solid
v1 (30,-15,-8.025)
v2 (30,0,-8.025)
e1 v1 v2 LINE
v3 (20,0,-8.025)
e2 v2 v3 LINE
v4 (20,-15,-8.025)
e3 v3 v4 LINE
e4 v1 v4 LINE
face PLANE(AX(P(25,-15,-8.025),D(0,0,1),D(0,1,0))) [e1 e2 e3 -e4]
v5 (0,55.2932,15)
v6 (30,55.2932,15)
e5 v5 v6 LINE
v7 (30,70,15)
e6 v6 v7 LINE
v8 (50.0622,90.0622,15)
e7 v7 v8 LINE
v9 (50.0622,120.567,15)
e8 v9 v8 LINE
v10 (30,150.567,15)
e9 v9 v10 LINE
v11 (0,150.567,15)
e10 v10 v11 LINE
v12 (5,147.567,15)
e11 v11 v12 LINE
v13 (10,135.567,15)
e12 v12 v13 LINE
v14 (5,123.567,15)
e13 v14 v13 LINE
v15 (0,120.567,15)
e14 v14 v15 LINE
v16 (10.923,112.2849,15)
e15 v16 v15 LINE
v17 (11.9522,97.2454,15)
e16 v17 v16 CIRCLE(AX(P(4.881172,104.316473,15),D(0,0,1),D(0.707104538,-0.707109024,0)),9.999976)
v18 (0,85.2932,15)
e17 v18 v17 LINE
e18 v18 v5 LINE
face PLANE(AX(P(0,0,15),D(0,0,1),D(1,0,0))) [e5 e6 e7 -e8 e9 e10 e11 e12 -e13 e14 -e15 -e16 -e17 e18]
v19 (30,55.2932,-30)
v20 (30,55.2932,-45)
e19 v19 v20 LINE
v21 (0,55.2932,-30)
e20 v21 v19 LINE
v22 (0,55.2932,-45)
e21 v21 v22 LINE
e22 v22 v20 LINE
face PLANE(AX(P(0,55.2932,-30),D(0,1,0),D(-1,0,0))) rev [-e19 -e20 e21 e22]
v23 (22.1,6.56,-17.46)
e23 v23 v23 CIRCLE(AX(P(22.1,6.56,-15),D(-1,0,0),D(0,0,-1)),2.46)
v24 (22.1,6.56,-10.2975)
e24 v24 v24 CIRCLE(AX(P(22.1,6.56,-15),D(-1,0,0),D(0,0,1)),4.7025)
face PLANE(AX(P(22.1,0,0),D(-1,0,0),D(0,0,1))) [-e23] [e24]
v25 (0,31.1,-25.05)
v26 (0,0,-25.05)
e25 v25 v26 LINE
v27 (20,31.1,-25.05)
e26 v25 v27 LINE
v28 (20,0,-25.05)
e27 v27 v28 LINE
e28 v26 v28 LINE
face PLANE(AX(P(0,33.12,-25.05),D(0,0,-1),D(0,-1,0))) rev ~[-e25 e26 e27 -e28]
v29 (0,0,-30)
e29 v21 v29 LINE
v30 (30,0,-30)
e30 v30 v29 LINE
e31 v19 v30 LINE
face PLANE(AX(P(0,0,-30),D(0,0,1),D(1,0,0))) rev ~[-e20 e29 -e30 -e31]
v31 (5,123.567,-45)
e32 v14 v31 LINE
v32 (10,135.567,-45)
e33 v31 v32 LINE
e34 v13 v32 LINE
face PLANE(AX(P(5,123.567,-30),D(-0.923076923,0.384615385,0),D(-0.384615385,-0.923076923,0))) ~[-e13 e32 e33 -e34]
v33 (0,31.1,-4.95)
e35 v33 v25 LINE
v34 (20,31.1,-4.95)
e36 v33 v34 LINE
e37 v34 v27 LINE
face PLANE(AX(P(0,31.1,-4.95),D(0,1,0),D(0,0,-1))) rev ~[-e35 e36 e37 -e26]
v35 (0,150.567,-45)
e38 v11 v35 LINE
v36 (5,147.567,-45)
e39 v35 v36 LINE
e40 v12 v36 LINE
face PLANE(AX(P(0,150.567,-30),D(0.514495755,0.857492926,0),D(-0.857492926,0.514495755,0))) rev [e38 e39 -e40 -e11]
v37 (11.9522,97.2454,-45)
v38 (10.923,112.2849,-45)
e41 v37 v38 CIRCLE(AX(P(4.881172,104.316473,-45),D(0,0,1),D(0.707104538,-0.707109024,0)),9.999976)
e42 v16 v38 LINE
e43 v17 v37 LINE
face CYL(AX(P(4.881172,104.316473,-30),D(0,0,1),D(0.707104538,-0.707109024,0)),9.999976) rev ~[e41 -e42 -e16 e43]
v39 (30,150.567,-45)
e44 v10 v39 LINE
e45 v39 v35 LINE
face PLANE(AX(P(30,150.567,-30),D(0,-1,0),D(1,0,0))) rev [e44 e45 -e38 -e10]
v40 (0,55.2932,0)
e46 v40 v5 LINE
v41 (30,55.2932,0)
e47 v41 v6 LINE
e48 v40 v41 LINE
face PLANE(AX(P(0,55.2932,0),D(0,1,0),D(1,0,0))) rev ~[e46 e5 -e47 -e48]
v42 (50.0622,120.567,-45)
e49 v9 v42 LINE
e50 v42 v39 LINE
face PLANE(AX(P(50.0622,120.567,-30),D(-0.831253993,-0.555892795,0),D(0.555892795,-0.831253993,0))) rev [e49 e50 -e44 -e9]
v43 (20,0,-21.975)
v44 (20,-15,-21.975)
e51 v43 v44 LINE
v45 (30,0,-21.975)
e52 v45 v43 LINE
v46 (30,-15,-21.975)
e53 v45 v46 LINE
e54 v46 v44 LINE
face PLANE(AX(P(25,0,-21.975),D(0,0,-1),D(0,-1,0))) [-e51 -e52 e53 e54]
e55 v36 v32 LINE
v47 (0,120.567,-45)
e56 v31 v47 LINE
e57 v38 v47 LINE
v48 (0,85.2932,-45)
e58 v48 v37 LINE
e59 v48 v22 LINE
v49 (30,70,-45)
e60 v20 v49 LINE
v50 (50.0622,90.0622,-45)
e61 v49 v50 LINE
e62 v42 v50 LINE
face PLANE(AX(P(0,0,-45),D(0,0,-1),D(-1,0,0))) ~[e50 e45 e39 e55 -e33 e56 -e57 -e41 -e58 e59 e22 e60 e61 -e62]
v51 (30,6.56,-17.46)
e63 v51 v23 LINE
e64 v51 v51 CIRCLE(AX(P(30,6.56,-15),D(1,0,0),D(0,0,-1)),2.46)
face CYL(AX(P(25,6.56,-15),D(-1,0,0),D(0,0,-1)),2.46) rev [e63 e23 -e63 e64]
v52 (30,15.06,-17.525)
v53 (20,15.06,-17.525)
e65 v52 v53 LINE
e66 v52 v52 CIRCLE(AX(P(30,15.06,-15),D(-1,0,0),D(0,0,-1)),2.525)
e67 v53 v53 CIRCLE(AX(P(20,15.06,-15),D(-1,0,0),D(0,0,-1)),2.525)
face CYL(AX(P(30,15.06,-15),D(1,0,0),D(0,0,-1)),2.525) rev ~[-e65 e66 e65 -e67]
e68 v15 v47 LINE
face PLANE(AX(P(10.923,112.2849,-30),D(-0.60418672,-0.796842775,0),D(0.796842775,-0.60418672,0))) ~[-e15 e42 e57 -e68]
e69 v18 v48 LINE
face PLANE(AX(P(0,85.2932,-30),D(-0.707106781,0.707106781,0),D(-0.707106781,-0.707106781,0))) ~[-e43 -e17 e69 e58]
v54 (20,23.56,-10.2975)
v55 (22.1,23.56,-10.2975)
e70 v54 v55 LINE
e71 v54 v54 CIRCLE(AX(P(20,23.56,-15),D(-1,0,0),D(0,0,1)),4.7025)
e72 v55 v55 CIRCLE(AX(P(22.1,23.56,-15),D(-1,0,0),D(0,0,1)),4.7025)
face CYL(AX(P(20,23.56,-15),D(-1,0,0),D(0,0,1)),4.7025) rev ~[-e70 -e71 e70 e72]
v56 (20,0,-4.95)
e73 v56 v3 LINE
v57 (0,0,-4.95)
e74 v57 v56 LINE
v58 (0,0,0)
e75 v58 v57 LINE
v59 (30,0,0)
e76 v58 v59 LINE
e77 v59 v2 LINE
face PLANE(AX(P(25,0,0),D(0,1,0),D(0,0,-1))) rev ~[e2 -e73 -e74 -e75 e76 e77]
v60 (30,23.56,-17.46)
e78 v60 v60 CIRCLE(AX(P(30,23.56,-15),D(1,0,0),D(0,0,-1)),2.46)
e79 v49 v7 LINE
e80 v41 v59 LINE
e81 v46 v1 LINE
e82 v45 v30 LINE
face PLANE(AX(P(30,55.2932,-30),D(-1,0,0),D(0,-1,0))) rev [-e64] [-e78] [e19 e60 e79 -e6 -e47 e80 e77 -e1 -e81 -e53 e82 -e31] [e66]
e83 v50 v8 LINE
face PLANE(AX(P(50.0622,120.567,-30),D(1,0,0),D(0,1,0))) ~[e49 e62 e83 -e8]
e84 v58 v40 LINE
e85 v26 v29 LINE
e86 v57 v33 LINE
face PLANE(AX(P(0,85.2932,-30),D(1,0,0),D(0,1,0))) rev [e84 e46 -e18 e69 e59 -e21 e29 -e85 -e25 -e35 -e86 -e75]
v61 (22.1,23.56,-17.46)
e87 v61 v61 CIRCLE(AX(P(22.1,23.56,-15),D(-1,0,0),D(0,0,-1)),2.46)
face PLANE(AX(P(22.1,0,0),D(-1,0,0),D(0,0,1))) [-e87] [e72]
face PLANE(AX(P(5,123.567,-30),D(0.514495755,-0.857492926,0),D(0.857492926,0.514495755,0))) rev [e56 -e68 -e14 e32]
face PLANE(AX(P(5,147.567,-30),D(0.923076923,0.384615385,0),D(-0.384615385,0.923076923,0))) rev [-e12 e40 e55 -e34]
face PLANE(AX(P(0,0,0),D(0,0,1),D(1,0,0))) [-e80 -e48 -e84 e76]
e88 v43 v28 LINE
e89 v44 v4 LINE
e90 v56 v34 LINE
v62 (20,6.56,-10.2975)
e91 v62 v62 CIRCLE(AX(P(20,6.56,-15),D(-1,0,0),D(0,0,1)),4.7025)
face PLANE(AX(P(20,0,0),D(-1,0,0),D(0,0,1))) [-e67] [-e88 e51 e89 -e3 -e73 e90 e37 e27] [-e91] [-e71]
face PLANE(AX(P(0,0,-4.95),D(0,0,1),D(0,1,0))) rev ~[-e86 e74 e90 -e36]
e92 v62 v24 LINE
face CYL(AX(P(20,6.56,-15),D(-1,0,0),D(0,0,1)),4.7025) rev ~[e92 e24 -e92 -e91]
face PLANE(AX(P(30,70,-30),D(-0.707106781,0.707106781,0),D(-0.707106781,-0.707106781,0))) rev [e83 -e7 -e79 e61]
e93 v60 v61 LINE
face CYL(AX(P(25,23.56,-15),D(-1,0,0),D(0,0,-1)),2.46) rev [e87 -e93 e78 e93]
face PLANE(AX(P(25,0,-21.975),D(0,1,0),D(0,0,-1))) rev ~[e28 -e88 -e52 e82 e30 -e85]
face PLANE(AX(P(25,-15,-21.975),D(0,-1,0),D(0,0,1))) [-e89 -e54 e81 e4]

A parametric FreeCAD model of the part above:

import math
import FreeCAD as App
import Part
import Sketcher
Q = App.Units.Quantity

doc = App.newDocument("Part")
body = doc.addObject("PartDesign::Body", "Body")

# Sketch on XY plane
sketch1 = doc.addObject("Sketcher::SketchObject", "Sketch")
body.addObject(sketch1)
sketch1.AttachmentSupport = (doc.XY_Plane, [""])
sketch1.MapMode = "FlatFace"
sketch1.addGeometry([
    Part.LineSegment(App.Vector(0, 40, 0), App.Vector(0, 0, 0)),
    Part.LineSegment(App.Vector(0, 0, 0), App.Vector(25, 0, 0)),
    Part.LineSegment(App.Vector(25, 0, 0), App.Vector(25, 40, 0)),
    Part.LineSegment(App.Vector(25, 40, 0), App.Vector(0, 40, 0)),
], False)
sketch1.addConstraint([
    Sketcher.Constraint("Coincident", 0, 2, 1, 1),
    Sketcher.Constraint("Coincident", 1, 2, 2, 1),
    Sketcher.Constraint("Coincident", 2, 2, 3, 1),
    Sketcher.Constraint("Coincident", 3, 2, 0, 1),
    Sketcher.Constraint("Vertical", 0),
    Sketcher.Constraint("Horizontal", 1),
    Sketcher.Constraint("Vertical", 2),
    Sketcher.Constraint("Horizontal", 3),
    Sketcher.Constraint("Coincident", 0, 2, -1, 1),
    Sketcher.Constraint("DistanceX", 1, 1, 1, 2, Q("25 mm")),
    Sketcher.Constraint("DistanceY", 0, 2, 0, 1, Q("40 mm")),
])
pad1 = doc.addObject("PartDesign::Pad", "Pad")
body.addObject(pad1)
pad1.Profile = sketch1
pad1.Length = 30
pad1.Reversed = True

# Sketch on YZ plane
sketch2 = doc.addObject("Sketcher::SketchObject", "Sketch001")
body.addObject(sketch2)
sketch2.AttachmentSupport = (doc.YZ_Plane, [""])
sketch2.MapMode = "FlatFace"
sketch2.AttachmentOffset = App.Placement(App.Vector(0, 0, 25), App.Rotation())
sketch2.addGeometry(Part.Circle(App.Vector(6.56, -15, 0), App.Vector(0, 0, 1), 2.46), False)
sketch2.addConstraint([
    Sketcher.Constraint("Diameter", 0, Q("4.92 mm")),
    Sketcher.Constraint("DistanceY", 0, 3, -1, 1, Q("15 mm")),
    Sketcher.Constraint("DistanceX", -1, 1, 0, 3, Q("6.56 mm")),
])
pocket1 = doc.addObject("PartDesign::Pocket", "Pocket")
body.addObject(pocket1)
pocket1.Profile = sketch2
pocket1.Length = 30

# Sketch on YZ plane
sketch3 = doc.addObject("Sketcher::SketchObject", "Sketch002")
body.addObject(sketch3)
sketch3.AttachmentSupport = (doc.YZ_Plane, [""])
sketch3.MapMode = "FlatFace"
sketch3.addGeometry([
    Part.LineSegment(App.Vector(0, -25.05, 0), App.Vector(0, -4.95, 0)),
    Part.LineSegment(App.Vector(0, -4.95, 0), App.Vector(33.12, -4.95, 0)),
    Part.LineSegment(App.Vector(33.12, -4.95, 0), App.Vector(33.12, -25.05, 0)),
    Part.LineSegment(App.Vector(33.12, -25.05, 0), App.Vector(0, -25.05, 0)),
], False)
sketch3.addConstraint([
    Sketcher.Constraint("Coincident", 0, 2, 1, 1),
    Sketcher.Constraint("Coincident", 1, 2, 2, 1),
    Sketcher.Constraint("Coincident", 2, 2, 3, 1),
    Sketcher.Constraint("Coincident", 3, 2, 0, 1),
    Sketcher.Constraint("Vertical", 0),
    Sketcher.Constraint("Horizontal", 1),
    Sketcher.Constraint("Vertical", 2),
    Sketcher.Constraint("Horizontal", 3),
    Sketcher.Constraint("PointOnObject", 0, 2, -2),
    Sketcher.Constraint("DistanceY", 0, 1, 0, 2, Q("20.1 mm")),
    Sketcher.Constraint("DistanceX", 1, 1, 1, 2, Q("33.12 mm")),
    Sketcher.Constraint("DistanceY", 0, 2, -1, 1, Q("4.95 mm")),
])
pocket2 = doc.addObject("PartDesign::Pocket", "Pocket001")
body.addObject(pocket2)
pocket2.Profile = sketch3
pocket2.Length = 20
pocket2.Reversed = True

# Sketch on XZ plane
sketch4 = doc.addObject("Sketcher::SketchObject", "Sketch003")
body.addObject(sketch4)
sketch4.AttachmentSupport = (doc.XZ_Plane, [""])
sketch4.MapMode = "FlatFace"
sketch4.addGeometry([
    Part.LineSegment(App.Vector(25, -8.025, 0), App.Vector(20, -8.025, 0)),
    Part.LineSegment(App.Vector(20, -8.025, 0), App.Vector(20, -21.975, 0)),
    Part.LineSegment(App.Vector(20, -21.975, 0), App.Vector(25, -21.975, 0)),
    Part.LineSegment(App.Vector(25, -21.975, 0), App.Vector(25, -8.025, 0)),
], False)
sketch4.addConstraint([
    Sketcher.Constraint("Coincident", 0, 2, 1, 1),
    Sketcher.Constraint("Coincident", 1, 2, 2, 1),
    Sketcher.Constraint("Coincident", 2, 2, 3, 1),
    Sketcher.Constraint("Coincident", 3, 2, 0, 1),
    Sketcher.Constraint("Horizontal", 0),
    Sketcher.Constraint("Vertical", 1),
    Sketcher.Constraint("Horizontal", 2),
    Sketcher.Constraint("Vertical", 3),
    Sketcher.Constraint("DistanceY", 1, 2, 1, 1, Q("13.95 mm")),
    Sketcher.Constraint("DistanceX", 0, 2, 0, 1, Q("5 mm")),
    Sketcher.Constraint("DistanceX", -1, 1, 0, 2, Q("20 mm")),
    Sketcher.Constraint("DistanceY", 0, 2, -1, 1, Q("8.025 mm")),
])
pad2 = doc.addObject("PartDesign::Pad", "Pad001")
body.addObject(pad2)
pad2.Profile = sketch4
pad2.Length = 15

# Sketch on YZ plane
sketch5 = doc.addObject("Sketcher::SketchObject", "Sketch004")
body.addObject(sketch5)
sketch5.AttachmentSupport = (doc.YZ_Plane, [""])
sketch5.MapMode = "FlatFace"
sketch5.AttachmentOffset = App.Placement(App.Vector(0, 0, 20), App.Rotation())
sketch5.addGeometry([
    Part.Circle(App.Vector(6.56, -15, 0), App.Vector(0, 0, 1), 4.7025),
    Part.Circle(App.Vector(6.56, -15, 0), App.Vector(0, 0, 1), 2.46),
], False)
sketch5.addConstraint([
    Sketcher.Constraint("Coincident", 1, 3, 0, 3),
    Sketcher.Constraint("Diameter", 0, Q("9.405 mm")),
    Sketcher.Constraint("Diameter", 1, Q("4.92 mm")),
    Sketcher.Constraint("DistanceY", 0, 3, -1, 1, Q("15 mm")),
    Sketcher.Constraint("DistanceX", -1, 1, 0, 3, Q("6.56 mm")),
])
pocket3 = doc.addObject("PartDesign::Pocket", "Pocket002")
body.addObject(pocket3)
pocket3.Profile = sketch5
pocket3.Length = 2.1
pocket3.Reversed = True

# Sketch on YZ plane
sketch6 = doc.addObject("Sketcher::SketchObject", "Sketch005")
body.addObject(sketch6)
sketch6.AttachmentSupport = (doc.YZ_Plane, [""])
sketch6.MapMode = "FlatFace"
sketch6.AttachmentOffset = App.Placement(App.Vector(0, 0, 25), App.Rotation())
sketch6.addGeometry(Part.Circle(App.Vector(23.56, -15, 0), App.Vector(0, 0, 1), 2.46), False)
sketch6.addConstraint([
    Sketcher.Constraint("Diameter", 0, Q("4.92 mm")),
    Sketcher.Constraint("DistanceY", 0, 3, -1, 1, Q("15 mm")),
    Sketcher.Constraint("DistanceX", -1, 1, 0, 3, Q("23.56 mm")),
])
pocket4 = doc.addObject("PartDesign::Pocket", "Pocket003")
body.addObject(pocket4)
pocket4.Profile = sketch6
pocket4.Length = 10

# Sketch on YZ plane
sketch7 = doc.addObject("Sketcher::SketchObject", "Sketch006")
body.addObject(sketch7)
sketch7.AttachmentSupport = (doc.YZ_Plane, [""])
sketch7.MapMode = "FlatFace"
sketch7.AttachmentOffset = App.Placement(App.Vector(0, 0, 20), App.Rotation())
sketch7.addGeometry([
    Part.Circle(App.Vector(23.56, -15, 0), App.Vector(0, 0, 1), 4.7025),
    Part.Circle(App.Vector(23.56, -15, 0), App.Vector(0, 0, 1), 2.46),
], False)
sketch7.addConstraint([
    Sketcher.Constraint("Coincident", 1, 3, 0, 3),
    Sketcher.Constraint("Diameter", 0, Q("9.405 mm")),
    Sketcher.Constraint("Diameter", 1, Q("4.92 mm")),
    Sketcher.Constraint("DistanceY", 0, 3, -1, 1, Q("15 mm")),
    Sketcher.Constraint("DistanceX", -1, 1, 0, 3, Q("23.56 mm")),
])
pocket5 = doc.addObject("PartDesign::Pocket", "Pocket004")
body.addObject(pocket5)
pocket5.Profile = sketch7
pocket5.Length = 2.1
pocket5.Reversed = True

# Sketch on YZ plane
sketch8 = doc.addObject("Sketcher::SketchObject", "Sketch007")
body.addObject(sketch8)
sketch8.AttachmentSupport = (doc.YZ_Plane, [""])
sketch8.MapMode = "FlatFace"
sketch8.AttachmentOffset = App.Placement(App.Vector(0, 0, 25), App.Rotation())
sketch8.addGeometry([
    Part.LineSegment(App.Vector(0, -30, 0), App.Vector(40, -30, 0)),  # 0
    Part.LineSegment(App.Vector(40, -30, 0), App.Vector(40, 0, 0)),  # 1
    Part.LineSegment(App.Vector(40, 0, 0), App.Vector(0, 0, 0)),  # 2
    Part.LineSegment(App.Vector(0, 0, 0), App.Vector(0, -8.025, 0)),  # 3
    Part.LineSegment(App.Vector(0, -8.025, 0), App.Vector(-15, -8.025, 0)),  # 4
    Part.LineSegment(App.Vector(-15, -8.025, 0), App.Vector(-15, -21.975, 0)),  # 5
    Part.LineSegment(App.Vector(-15, -21.975, 0), App.Vector(0, -21.975, 0)),  # 6
    Part.LineSegment(App.Vector(0, -21.975, 0), App.Vector(0, -30, 0)),  # 7
    Part.Circle(App.Vector(6.56, -15, 0), App.Vector(0, 0, 1), 2.46),  # 8
    Part.Circle(App.Vector(23.56, -15, 0), App.Vector(0, 0, 1), 2.46),  # 9
], False)
sketch8.addConstraint([
    Sketcher.Constraint("Coincident", 0, 2, 1, 1),
    Sketcher.Constraint("Coincident", 1, 2, 2, 1),
    Sketcher.Constraint("Coincident", 2, 2, 3, 1),
    Sketcher.Constraint("Coincident", 3, 2, 4, 1),
    Sketcher.Constraint("Coincident", 4, 2, 5, 1),
    Sketcher.Constraint("Coincident", 5, 2, 6, 1),
    Sketcher.Constraint("Coincident", 6, 2, 7, 1),
    Sketcher.Constraint("Coincident", 7, 2, 0, 1),
    Sketcher.Constraint("Horizontal", 0),
    Sketcher.Constraint("Vertical", 1),
    Sketcher.Constraint("Horizontal", 2),
    Sketcher.Constraint("Vertical", 3),
    Sketcher.Constraint("Horizontal", 4),
    Sketcher.Constraint("Vertical", 5),
    Sketcher.Constraint("Horizontal", 6),
    Sketcher.Constraint("Vertical", 7),
    Sketcher.Constraint("Coincident", 2, 2, -1, 1),
    Sketcher.Constraint("Equal", 8, 9),
    Sketcher.Constraint("PointOnObject", 6, 2, -2),
    Sketcher.Constraint("Horizontal", 8, 3, 9, 3),
    Sketcher.Constraint("Equal", 3, 7),
    Sketcher.Constraint("Diameter", 8, Q("4.92 mm")),
    Sketcher.Constraint("DistanceX", 0, 1, 0, 2, Q("40 mm")),
    Sketcher.Constraint("DistanceX", 4, 2, 4, 1, Q("15 mm")),
    Sketcher.Constraint("DistanceY", 1, 1, 1, 2, Q("30 mm")),
    Sketcher.Constraint("DistanceY", 8, 3, -1, 1, Q("15 mm")),
    Sketcher.Constraint("DistanceX", 8, 3, 9, 3, Q("17 mm")),
    Sketcher.Constraint("DistanceY", 5, 2, 5, 1, Q("13.95 mm")),
    Sketcher.Constraint("DistanceX", -1, 1, 8, 3, Q("6.56 mm")),
])
pad3 = doc.addObject("PartDesign::Pad", "Pad002")
body.addObject(pad3)
pad3.Profile = sketch8
pad3.Length = 5

# Sketch on XZ plane
sketch9 = doc.addObject("Sketcher::SketchObject", "Sketch008")
body.addObject(sketch9)
sketch9.AttachmentSupport = (doc.XZ_Plane, [""])
sketch9.MapMode = "FlatFace"
sketch9.AttachmentOffset = App.Placement(App.Vector(0, 0, -40), App.Rotation())
sketch9.addGeometry([
    Part.LineSegment(App.Vector(30, -30, 0), App.Vector(0, -30, 0)),
    Part.LineSegment(App.Vector(0, -30, 0), App.Vector(0, 0, 0)),
    Part.LineSegment(App.Vector(0, 0, 0), App.Vector(30, 0, 0)),
    Part.LineSegment(App.Vector(30, 0, 0), App.Vector(30, -30, 0)),
], False)
sketch9.addConstraint([
    Sketcher.Constraint("Coincident", 0, 2, 1, 1),
    Sketcher.Constraint("Coincident", 1, 2, 2, 1),
    Sketcher.Constraint("Coincident", 2, 2, 3, 1),
    Sketcher.Constraint("Coincident", 3, 2, 0, 1),
    Sketcher.Constraint("Horizontal", 0),
    Sketcher.Constraint("Vertical", 1),
    Sketcher.Constraint("Horizontal", 2),
    Sketcher.Constraint("Vertical", 3),
    Sketcher.Constraint("Coincident", 1, 2, -1, 1),
    Sketcher.Constraint("Equal", 2, 1),
    Sketcher.Constraint("DistanceX", 0, 2, 0, 1, Q("30 mm")),
])
pad4 = doc.addObject("PartDesign::Pad", "Pad003")
body.addObject(pad4)
pad4.Profile = sketch9
pad4.Length = 30
pad4.Reversed = True

# Sketch on YZ plane
sketch10 = doc.addObject("Sketcher::SketchObject", "Sketch009")
body.addObject(sketch10)
sketch10.AttachmentSupport = (doc.YZ_Plane, [""])
sketch10.MapMode = "FlatFace"
sketch10.AttachmentOffset = App.Placement(App.Vector(0, 0, 30), App.Rotation())
sketch10.addGeometry(Part.Circle(App.Vector(15.06, -15, 0), App.Vector(0, 0, 1), 2.525), False)
sketch10.addConstraint([
    Sketcher.Constraint("Diameter", 0, Q("5.05 mm")),
    Sketcher.Constraint("DistanceY", 0, 3, -1, 1, Q("15 mm")),
    Sketcher.Constraint("DistanceX", -1, 1, 0, 3, Q("15.06 mm")),
])
pocket6 = doc.addObject("PartDesign::Pocket", "Pocket005")
body.addObject(pocket6)
pocket6.Profile = sketch10
pocket6.Length = 30

# Sketch on YZ plane
sketch11 = doc.addObject("Sketcher::SketchObject", "Sketch010")
body.addObject(sketch11)
sketch11.AttachmentSupport = (doc.YZ_Plane, [""])
sketch11.MapMode = "FlatFace"
sketch11.addGeometry([
    Part.LineSegment(App.Vector(33.12, -4.95, 0), App.Vector(33.12, -25.05, 0)),
    Part.LineSegment(App.Vector(33.12, -25.05, 0), App.Vector(31.1, -25.05, 0)),
    Part.LineSegment(App.Vector(31.1, -25.05, 0), App.Vector(31.1, -4.95, 0)),
    Part.LineSegment(App.Vector(31.1, -4.95, 0), App.Vector(33.12, -4.95, 0)),
], False)
sketch11.addConstraint([
    Sketcher.Constraint("Coincident", 0, 2, 1, 1),
    Sketcher.Constraint("Coincident", 1, 2, 2, 1),
    Sketcher.Constraint("Coincident", 2, 2, 3, 1),
    Sketcher.Constraint("Coincident", 3, 2, 0, 1),
    Sketcher.Constraint("Vertical", 0),
    Sketcher.Constraint("Horizontal", 1),
    Sketcher.Constraint("Vertical", 2),
    Sketcher.Constraint("Horizontal", 3),
    Sketcher.Constraint("DistanceX", 1, 2, 1, 1, Q("2.02 mm")),
    Sketcher.Constraint("DistanceY", 0, 2, 0, 1, Q("20.1 mm")),
    Sketcher.Constraint("DistanceX", -1, 1, 1, 2, Q("31.1 mm")),
    Sketcher.Constraint("DistanceY", 0, 2, -1, 1, Q("25.05 mm")),
])
pad5 = doc.addObject("PartDesign::Pad", "Pad004")
body.addObject(pad5)
pad5.Profile = sketch11
pad5.Length = 20

# Sketch on XY plane
sketch12 = doc.addObject("Sketcher::SketchObject", "Sketch011")
body.addObject(sketch12)
sketch12.AttachmentSupport = (doc.XY_Plane, [""])
sketch12.MapMode = "FlatFace"
sketch12.addGeometry([
    Part.LineSegment(App.Vector(0, 85.2932, 0), App.Vector(0, 70, 0)),  # 0
    Part.LineSegment(App.Vector(0, 70, 0), App.Vector(30, 70, 0)),  # 1
    Part.LineSegment(App.Vector(30, 70, 0), App.Vector(50.0622, 90.0622, 0)),  # 2
    Part.LineSegment(App.Vector(50.0622, 90.0622, 0), App.Vector(50.0622, 120.567, 0)),  # 3
    Part.LineSegment(App.Vector(50.0622, 120.567, 0), App.Vector(30, 150.567, 0)),  # 4
    Part.LineSegment(App.Vector(30, 150.567, 0), App.Vector(0, 150.567, 0)),  # 5
    Part.LineSegment(App.Vector(0, 150.567, 0), App.Vector(5, 147.567, 0)),  # 6
    Part.LineSegment(App.Vector(5, 147.567, 0), App.Vector(10, 135.567, 0)),  # 7
    Part.LineSegment(App.Vector(10, 135.567, 0), App.Vector(5, 123.567, 0)),  # 8
    Part.LineSegment(App.Vector(5, 123.567, 0), App.Vector(0, 120.567, 0)),  # 9
    Part.LineSegment(App.Vector(0, 120.567, 0), App.Vector(10.923, 112.2849, 0)),  # 10
    Part.ArcOfCircle(Part.Circle(App.Vector(4.8811, 104.3165, 0), App.Vector(0, 0, 1), 10.000046), math.radians(-45), math.radians(52.829413)),  # 11
    Part.LineSegment(App.Vector(11.9522, 97.2454, 0), App.Vector(0, 85.2932, 0)),  # 12
], False)
sketch12.addConstraint([
    Sketcher.Constraint("Coincident", 0, 2, 1, 1),
    Sketcher.Constraint("Coincident", 1, 2, 2, 1),
    Sketcher.Constraint("Coincident", 2, 2, 3, 1),
    Sketcher.Constraint("Coincident", 3, 2, 4, 1),
    Sketcher.Constraint("Coincident", 4, 2, 5, 1),
    Sketcher.Constraint("Coincident", 5, 2, 6, 1),
    Sketcher.Constraint("Coincident", 6, 2, 7, 1),
    Sketcher.Constraint("Coincident", 7, 2, 8, 1),
    Sketcher.Constraint("Coincident", 8, 2, 9, 1),
    Sketcher.Constraint("Coincident", 9, 2, 10, 1),
    Sketcher.Constraint("Tangent", 10, 2, 11, 2),
    Sketcher.Constraint("Tangent", 11, 1, 12, 1),
    Sketcher.Constraint("Coincident", 12, 2, 0, 1),
    Sketcher.Constraint("Vertical", 0),
    Sketcher.Constraint("Horizontal", 1),
    Sketcher.Constraint("Vertical", 3),
    Sketcher.Constraint("Horizontal", 5),
    Sketcher.Constraint("PointOnObject", 0, 2, -2),
    Sketcher.Constraint("PointOnObject", 5, 2, -2),
    Sketcher.Constraint("PointOnObject", 9, 2, -2),
    Sketcher.Constraint("Parallel", 2, 12),
    Sketcher.Constraint("Horizontal", 3, 2, 9, 2),
    Sketcher.Constraint("Vertical", 1, 2, 4, 2),
    Sketcher.Constraint("Vertical", 6, 2, 8, 2),
    Sketcher.Constraint("Equal", 7, 8),
    Sketcher.Constraint("Equal", 6, 9),
    Sketcher.Constraint("Radius", 11, Q("10 mm")),
    Sketcher.Constraint("Angle", 2, Q("45 deg")),
    Sketcher.Constraint("DistanceX", -1, 1, 7, 2, Q("10 mm")),
    Sketcher.Constraint("DistanceX", 1, 1, 1, 2, Q("30 mm")),
    Sketcher.Constraint("Distance", 7, Q("13 mm")),
    Sketcher.Constraint("DistanceY", -1, 1, 0, 2, Q("70 mm")),
    Sketcher.Constraint("DistanceX", -1, 1, 6, 2, Q("5 mm")),
    Sketcher.Constraint("DistanceY", 3, 2, 4, 2, Q("30 mm")),
    Sketcher.Constraint("Angle", 10, Q("-37.1703 deg")),
    Sketcher.Constraint("Distance", 4, Q("36.09 mm")),
    Sketcher.Constraint("Distance", 12, Q("16.903 mm")),
    Sketcher.Constraint("DistanceY", 0, 2, 0, 1, Q("15.2932 mm")),
])
pad6 = doc.addObject("PartDesign::Pad", "Pad005")
body.addObject(pad6)
pad6.Profile = sketch12
pad6.Length = 30
pad6.Reversed = True

# Sketch on XY plane
sketch13 = doc.addObject("Sketcher::SketchObject", "Sketch012")
body.addObject(sketch13)
sketch13.AttachmentSupport = (doc.XY_Plane, [""])
sketch13.MapMode = "FlatFace"
sketch13.addGeometry([
    Part.LineSegment(App.Vector(0, 55.2932, 0), App.Vector(30, 55.2932, 0)),  # 0
    Part.LineSegment(App.Vector(30, 55.2932, 0), App.Vector(30, 70, 0)),  # 1
    Part.LineSegment(App.Vector(30, 70, 0), App.Vector(50.0622, 90.0622, 0)),  # 2
    Part.LineSegment(App.Vector(50.0622, 90.0622, 0), App.Vector(50.0622, 120.567, 0)),  # 3
    Part.LineSegment(App.Vector(50.0622, 120.567, 0), App.Vector(30, 150.567, 0)),  # 4
    Part.LineSegment(App.Vector(30, 150.567, 0), App.Vector(0, 150.567, 0)),  # 5
    Part.LineSegment(App.Vector(0, 150.567, 0), App.Vector(5, 147.567, 0)),  # 6
    Part.LineSegment(App.Vector(5, 147.567, 0), App.Vector(10, 135.567, 0)),  # 7
    Part.LineSegment(App.Vector(10, 135.567, 0), App.Vector(5, 123.567, 0)),  # 8
    Part.LineSegment(App.Vector(5, 123.567, 0), App.Vector(0, 120.567, 0)),  # 9
    Part.LineSegment(App.Vector(0, 120.567, 0), App.Vector(10.923, 112.2849, 0)),  # 10
    Part.ArcOfCircle(Part.Circle(App.Vector(4.8811, 104.3165, 0), App.Vector(0, 0, 1), 10.000046), math.radians(-45), math.radians(52.829413)),  # 11
    Part.LineSegment(App.Vector(11.9522, 97.2454, 0), App.Vector(0, 85.2932, 0)),  # 12
    Part.LineSegment(App.Vector(0, 85.2932, 0), App.Vector(0, 55.2932, 0)),  # 13
], False)
sketch13.addConstraint([
    Sketcher.Constraint("Coincident", 0, 2, 1, 1),
    Sketcher.Constraint("Coincident", 1, 2, 2, 1),
    Sketcher.Constraint("Coincident", 2, 2, 3, 1),
    Sketcher.Constraint("Coincident", 3, 2, 4, 1),
    Sketcher.Constraint("Coincident", 4, 2, 5, 1),
    Sketcher.Constraint("Coincident", 5, 2, 6, 1),
    Sketcher.Constraint("Coincident", 6, 2, 7, 1),
    Sketcher.Constraint("Coincident", 7, 2, 8, 1),
    Sketcher.Constraint("Coincident", 8, 2, 9, 1),
    Sketcher.Constraint("Coincident", 9, 2, 10, 1),
    Sketcher.Constraint("Tangent", 10, 2, 11, 2),
    Sketcher.Constraint("Tangent", 11, 1, 12, 1),
    Sketcher.Constraint("Coincident", 12, 2, 13, 1),
    Sketcher.Constraint("Coincident", 13, 2, 0, 1),
    Sketcher.Constraint("Horizontal", 0),
    Sketcher.Constraint("Vertical", 1),
    Sketcher.Constraint("Vertical", 3),
    Sketcher.Constraint("Horizontal", 5),
    Sketcher.Constraint("Vertical", 13),
    Sketcher.Constraint("PointOnObject", 5, 2, -2),
    Sketcher.Constraint("PointOnObject", 9, 2, -2),
    Sketcher.Constraint("PointOnObject", 12, 2, -2),
    Sketcher.Constraint("Parallel", 2, 12),
    Sketcher.Constraint("Horizontal", 3, 2, 9, 2),
    Sketcher.Constraint("Vertical", 1, 2, 4, 2),
    Sketcher.Constraint("Vertical", 6, 2, 8, 2),
    Sketcher.Constraint("Equal", 5, 13),
    Sketcher.Constraint("Equal", 7, 8),
    Sketcher.Constraint("Equal", 6, 9),
    Sketcher.Constraint("DistanceX", 0, 1, 0, 2, Q("30 mm")),
    Sketcher.Constraint("Radius", 11, Q("10 mm")),
    Sketcher.Constraint("DistanceY", 3, 2, 4, 2, Q("30 mm")),
    Sketcher.Constraint("Angle", 2, Q("45 deg")),
    Sketcher.Constraint("Distance", 7, Q("13 mm")),
    Sketcher.Constraint("DistanceY", -1, 1, 1, 2, Q("70 mm")),
    Sketcher.Constraint("DistanceX", -1, 1, 6, 2, Q("5 mm")),
    Sketcher.Constraint("DistanceX", -1, 1, 7, 2, Q("10 mm")),
    Sketcher.Constraint("Angle", 10, Q("-37.1703 deg")),
    Sketcher.Constraint("Distance", 4, Q("36.09 mm")),
    Sketcher.Constraint("Distance", 12, Q("16.903 mm")),
    Sketcher.Constraint("DistanceY", 1, 1, 1, 2, Q("14.7068 mm")),
])
pad7 = doc.addObject("PartDesign::Pad", "Pad006")
body.addObject(pad7)
pad7.Profile = sketch13
pad7.Length = 15
doc.recompute()

datumplane = doc.addObject("PartDesign::Plane", "DatumPlane")
body.addObject(datumplane)
datumplane.AttachmentSupport = (doc.XY_Plane, [""])
datumplane.MapMode = "FlatFace"
datumplane.AttachmentOffset = App.Placement(App.Vector(0, 0, -15), App.Rotation())
mirrored = doc.addObject("PartDesign::Mirrored", "Mirrored")
body.addObject(mirrored)
mirrored.Originals = [pad7]
mirrored.MirrorPlane = (datumplane, [""])
body.Tip = mirrored

doc.recompute()
